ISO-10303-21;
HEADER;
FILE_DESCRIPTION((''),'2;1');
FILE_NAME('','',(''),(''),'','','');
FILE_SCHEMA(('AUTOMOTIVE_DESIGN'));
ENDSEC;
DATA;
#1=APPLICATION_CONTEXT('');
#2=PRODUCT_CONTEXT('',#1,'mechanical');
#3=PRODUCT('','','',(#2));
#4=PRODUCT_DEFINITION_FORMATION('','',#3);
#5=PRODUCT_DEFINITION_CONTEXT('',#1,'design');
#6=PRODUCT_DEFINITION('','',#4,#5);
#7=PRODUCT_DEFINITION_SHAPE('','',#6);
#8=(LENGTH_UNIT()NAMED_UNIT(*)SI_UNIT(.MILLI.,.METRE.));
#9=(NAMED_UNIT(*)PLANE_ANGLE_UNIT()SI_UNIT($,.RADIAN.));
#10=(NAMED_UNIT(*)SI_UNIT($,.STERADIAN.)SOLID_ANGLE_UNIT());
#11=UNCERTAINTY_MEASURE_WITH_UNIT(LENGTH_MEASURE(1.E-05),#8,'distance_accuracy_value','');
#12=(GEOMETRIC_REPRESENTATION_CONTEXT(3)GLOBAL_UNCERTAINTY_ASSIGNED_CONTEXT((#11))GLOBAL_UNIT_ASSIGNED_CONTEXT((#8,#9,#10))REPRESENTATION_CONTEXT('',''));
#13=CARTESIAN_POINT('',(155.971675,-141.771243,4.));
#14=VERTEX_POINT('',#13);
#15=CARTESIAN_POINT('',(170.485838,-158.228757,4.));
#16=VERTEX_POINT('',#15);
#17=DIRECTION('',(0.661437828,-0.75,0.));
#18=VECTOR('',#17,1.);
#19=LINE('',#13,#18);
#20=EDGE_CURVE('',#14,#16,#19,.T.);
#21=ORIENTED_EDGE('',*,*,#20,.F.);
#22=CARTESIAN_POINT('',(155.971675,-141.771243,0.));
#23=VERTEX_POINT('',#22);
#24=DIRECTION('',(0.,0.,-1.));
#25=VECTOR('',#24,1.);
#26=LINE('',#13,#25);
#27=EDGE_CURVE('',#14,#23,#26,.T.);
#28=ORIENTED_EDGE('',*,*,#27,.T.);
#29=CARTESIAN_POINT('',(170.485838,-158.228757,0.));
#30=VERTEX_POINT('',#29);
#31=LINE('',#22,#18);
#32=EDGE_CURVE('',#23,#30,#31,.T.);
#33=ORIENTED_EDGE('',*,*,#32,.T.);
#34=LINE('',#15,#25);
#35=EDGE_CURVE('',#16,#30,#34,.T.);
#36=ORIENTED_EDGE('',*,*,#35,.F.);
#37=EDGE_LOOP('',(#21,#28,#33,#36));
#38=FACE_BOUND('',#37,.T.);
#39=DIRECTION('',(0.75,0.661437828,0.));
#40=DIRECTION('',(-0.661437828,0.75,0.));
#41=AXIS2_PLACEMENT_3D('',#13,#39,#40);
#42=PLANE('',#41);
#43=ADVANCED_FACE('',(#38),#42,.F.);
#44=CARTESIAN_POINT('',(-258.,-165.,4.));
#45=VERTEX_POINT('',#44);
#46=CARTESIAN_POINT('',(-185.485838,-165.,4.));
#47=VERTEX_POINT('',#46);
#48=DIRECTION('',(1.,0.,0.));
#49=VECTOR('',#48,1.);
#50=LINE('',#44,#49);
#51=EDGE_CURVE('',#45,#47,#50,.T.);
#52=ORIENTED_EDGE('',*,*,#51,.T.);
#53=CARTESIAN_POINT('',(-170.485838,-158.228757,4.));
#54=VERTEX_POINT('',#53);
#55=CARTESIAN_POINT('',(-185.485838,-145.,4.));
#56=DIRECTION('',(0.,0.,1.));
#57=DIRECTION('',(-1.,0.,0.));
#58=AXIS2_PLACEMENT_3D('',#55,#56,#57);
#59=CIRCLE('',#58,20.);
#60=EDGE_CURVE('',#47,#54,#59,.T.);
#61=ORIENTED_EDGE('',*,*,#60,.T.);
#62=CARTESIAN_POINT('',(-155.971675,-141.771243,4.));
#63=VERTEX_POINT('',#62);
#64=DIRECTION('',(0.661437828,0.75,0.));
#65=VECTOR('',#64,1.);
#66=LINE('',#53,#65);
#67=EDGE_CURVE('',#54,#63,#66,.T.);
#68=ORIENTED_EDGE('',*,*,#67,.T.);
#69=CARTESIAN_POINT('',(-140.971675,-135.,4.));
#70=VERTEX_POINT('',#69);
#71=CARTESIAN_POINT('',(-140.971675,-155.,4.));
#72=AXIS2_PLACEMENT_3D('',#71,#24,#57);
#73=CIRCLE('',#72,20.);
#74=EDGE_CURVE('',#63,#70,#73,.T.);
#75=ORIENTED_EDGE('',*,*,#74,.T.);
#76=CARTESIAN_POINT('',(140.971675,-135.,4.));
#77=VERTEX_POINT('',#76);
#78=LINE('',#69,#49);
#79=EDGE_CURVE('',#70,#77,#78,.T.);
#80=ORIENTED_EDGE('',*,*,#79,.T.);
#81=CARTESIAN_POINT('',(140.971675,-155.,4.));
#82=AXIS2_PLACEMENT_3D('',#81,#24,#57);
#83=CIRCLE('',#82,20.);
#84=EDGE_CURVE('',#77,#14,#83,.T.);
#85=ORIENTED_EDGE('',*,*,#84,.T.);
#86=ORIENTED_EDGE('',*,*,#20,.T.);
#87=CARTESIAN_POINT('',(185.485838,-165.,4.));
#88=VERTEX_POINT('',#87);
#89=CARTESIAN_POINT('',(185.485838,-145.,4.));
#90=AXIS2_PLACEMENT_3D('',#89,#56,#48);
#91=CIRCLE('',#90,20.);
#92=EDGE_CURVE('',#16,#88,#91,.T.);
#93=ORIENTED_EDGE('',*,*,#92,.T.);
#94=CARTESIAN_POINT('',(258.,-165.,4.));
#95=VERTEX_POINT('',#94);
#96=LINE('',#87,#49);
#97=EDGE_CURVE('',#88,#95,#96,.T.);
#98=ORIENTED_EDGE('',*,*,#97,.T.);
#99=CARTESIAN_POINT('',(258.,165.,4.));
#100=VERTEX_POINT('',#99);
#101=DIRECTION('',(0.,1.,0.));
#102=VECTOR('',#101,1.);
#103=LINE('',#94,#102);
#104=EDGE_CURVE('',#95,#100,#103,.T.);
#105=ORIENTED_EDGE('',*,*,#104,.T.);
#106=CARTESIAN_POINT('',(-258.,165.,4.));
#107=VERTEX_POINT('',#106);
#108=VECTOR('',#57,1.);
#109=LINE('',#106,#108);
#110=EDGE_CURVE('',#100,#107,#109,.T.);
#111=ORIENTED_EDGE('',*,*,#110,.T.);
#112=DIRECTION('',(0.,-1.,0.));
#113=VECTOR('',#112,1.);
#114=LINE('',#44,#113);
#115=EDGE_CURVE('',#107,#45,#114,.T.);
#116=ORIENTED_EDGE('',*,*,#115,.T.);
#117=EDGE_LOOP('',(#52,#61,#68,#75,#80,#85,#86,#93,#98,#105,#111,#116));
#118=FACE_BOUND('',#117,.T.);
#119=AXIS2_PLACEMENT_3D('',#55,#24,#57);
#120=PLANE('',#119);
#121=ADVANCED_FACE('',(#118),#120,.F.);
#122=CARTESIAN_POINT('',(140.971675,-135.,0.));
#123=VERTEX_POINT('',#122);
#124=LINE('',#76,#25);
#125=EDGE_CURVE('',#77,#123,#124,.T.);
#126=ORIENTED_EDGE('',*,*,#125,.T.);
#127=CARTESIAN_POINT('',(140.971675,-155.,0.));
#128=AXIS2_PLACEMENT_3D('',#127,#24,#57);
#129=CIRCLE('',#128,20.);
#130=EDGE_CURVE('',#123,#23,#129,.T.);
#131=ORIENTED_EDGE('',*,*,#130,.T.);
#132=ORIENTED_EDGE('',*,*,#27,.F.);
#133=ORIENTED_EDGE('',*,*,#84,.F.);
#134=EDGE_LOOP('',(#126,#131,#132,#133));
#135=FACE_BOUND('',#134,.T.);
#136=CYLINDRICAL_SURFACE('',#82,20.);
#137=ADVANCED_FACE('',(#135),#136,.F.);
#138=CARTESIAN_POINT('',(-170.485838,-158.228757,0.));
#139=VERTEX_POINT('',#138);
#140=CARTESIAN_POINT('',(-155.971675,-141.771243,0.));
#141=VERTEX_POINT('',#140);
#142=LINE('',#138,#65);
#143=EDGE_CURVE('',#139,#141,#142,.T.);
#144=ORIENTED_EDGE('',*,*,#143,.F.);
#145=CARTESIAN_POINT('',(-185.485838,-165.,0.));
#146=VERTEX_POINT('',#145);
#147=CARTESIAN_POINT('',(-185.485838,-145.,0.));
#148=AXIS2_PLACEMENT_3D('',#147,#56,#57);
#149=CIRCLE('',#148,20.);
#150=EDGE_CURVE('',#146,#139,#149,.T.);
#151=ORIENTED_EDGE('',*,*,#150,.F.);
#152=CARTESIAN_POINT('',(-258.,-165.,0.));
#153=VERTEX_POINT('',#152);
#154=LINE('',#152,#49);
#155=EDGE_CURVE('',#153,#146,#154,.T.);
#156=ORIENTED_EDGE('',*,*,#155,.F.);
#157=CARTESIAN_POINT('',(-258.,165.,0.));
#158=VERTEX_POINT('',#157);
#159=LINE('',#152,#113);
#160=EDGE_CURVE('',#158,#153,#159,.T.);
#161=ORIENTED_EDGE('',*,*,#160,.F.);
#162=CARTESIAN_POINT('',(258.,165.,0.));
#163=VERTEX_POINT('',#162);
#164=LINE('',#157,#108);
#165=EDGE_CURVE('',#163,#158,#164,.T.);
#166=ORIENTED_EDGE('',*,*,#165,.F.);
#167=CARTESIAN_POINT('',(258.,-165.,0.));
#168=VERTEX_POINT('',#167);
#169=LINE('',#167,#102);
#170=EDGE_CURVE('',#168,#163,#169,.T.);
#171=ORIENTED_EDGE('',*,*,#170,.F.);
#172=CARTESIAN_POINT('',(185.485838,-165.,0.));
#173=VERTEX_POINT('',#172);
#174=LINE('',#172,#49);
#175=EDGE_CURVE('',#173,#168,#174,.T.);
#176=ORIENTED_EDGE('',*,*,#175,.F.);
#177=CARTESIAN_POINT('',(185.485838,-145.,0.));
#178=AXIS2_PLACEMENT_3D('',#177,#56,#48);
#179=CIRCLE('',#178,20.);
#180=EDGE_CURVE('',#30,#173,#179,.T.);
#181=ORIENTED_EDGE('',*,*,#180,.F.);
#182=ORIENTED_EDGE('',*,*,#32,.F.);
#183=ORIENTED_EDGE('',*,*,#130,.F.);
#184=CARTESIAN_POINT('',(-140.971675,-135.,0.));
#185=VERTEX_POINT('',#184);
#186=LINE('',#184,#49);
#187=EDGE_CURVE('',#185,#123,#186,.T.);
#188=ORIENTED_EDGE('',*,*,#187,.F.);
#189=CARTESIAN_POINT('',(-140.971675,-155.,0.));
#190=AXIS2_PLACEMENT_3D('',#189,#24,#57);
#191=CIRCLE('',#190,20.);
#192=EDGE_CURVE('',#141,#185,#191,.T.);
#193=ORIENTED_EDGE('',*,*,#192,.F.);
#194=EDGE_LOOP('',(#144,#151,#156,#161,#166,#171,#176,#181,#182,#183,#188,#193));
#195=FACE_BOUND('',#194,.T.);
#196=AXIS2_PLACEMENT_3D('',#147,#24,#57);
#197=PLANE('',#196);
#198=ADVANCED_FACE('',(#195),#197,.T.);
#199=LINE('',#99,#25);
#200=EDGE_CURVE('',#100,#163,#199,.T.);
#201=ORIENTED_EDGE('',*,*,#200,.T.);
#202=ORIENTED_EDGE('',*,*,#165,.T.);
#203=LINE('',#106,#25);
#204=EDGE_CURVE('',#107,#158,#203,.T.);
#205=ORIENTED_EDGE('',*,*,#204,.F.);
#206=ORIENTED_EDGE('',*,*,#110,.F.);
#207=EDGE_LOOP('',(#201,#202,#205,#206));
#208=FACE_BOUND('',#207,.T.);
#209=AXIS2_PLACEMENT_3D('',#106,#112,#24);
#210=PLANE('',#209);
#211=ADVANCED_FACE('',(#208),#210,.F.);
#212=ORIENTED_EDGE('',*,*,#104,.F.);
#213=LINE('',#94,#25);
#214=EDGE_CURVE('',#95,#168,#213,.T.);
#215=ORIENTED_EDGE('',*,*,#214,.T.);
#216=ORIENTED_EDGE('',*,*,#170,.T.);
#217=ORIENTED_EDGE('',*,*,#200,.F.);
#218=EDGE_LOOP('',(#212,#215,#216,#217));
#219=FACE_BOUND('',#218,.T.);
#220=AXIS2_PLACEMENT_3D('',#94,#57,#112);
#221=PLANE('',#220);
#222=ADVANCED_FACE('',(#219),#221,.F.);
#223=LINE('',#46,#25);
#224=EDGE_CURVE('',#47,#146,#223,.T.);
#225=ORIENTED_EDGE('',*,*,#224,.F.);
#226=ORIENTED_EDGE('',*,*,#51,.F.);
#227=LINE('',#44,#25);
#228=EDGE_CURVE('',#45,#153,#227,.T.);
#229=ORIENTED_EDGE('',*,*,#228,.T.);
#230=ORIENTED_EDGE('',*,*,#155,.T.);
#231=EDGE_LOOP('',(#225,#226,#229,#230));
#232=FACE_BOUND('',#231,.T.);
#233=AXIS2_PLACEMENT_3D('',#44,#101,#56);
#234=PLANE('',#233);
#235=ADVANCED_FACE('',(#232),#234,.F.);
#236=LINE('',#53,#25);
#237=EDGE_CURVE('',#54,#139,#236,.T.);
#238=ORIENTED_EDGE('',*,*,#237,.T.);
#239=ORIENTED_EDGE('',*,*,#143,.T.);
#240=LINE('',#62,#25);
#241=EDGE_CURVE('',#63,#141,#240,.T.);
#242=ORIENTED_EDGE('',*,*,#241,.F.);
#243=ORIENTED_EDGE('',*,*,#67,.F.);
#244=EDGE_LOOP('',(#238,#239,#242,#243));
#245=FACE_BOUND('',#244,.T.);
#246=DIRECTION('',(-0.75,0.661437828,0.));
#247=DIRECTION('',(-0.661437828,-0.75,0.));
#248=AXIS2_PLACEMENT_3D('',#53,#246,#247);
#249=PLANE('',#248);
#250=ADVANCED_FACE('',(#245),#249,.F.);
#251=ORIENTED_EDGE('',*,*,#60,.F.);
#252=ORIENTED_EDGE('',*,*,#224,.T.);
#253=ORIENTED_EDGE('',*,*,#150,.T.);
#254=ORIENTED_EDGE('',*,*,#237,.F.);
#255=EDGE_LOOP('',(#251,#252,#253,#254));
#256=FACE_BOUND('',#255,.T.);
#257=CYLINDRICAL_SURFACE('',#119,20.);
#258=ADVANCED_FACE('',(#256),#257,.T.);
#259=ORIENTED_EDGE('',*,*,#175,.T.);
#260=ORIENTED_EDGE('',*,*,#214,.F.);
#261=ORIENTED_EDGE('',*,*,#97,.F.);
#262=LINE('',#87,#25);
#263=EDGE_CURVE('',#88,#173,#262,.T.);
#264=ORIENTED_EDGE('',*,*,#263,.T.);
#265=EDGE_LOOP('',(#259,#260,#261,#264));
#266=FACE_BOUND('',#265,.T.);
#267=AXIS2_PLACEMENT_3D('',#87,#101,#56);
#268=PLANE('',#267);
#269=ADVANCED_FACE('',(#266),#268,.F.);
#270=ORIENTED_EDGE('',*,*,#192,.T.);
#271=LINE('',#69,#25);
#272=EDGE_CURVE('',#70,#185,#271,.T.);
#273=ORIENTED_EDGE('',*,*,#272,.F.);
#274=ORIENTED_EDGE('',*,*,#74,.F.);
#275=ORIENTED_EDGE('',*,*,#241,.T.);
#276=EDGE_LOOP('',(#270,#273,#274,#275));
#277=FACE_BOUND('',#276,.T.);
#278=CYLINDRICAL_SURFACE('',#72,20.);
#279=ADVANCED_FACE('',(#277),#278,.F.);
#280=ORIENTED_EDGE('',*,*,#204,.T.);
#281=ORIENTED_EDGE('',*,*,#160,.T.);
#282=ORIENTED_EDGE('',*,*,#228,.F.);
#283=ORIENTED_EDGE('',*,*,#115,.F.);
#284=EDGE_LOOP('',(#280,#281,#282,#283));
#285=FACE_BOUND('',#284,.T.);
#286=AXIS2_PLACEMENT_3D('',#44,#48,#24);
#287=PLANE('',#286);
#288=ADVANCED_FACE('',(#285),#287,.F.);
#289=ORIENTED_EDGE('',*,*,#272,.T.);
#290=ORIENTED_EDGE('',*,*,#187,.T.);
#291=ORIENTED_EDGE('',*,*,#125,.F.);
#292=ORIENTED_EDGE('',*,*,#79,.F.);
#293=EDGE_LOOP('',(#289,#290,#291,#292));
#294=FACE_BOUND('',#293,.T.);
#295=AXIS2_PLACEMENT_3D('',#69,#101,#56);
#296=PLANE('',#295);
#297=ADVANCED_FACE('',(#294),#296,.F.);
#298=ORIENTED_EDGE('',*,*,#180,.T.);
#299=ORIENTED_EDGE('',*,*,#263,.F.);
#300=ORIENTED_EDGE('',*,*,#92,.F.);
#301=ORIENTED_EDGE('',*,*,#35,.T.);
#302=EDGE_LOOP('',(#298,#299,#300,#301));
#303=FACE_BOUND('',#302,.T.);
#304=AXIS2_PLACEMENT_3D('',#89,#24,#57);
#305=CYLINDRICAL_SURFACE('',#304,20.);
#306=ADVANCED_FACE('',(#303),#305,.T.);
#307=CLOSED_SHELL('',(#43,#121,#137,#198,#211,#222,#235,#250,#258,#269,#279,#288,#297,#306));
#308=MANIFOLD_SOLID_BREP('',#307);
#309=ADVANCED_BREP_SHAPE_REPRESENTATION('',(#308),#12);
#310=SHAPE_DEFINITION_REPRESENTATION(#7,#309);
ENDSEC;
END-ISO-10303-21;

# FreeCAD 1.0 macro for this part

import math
import FreeCAD as App
import Part
import Sketcher

V = App.Vector

doc = App.newDocument("Part")
body = doc.addObject("PartDesign::Body", "Body")

# Sketch on XY plane
sketch1 = doc.addObject("Sketcher::SketchObject", "Sketch")
body.addObject(sketch1)
sketch1.AttachmentSupport = (doc.XY_Plane, [""])
sketch1.MapMode = "FlatFace"
sketch1.addGeometry([
    Part.LineSegment(V(-170, -158, 0), V(-156, -142, 0)),  # 0
    Part.ArcOfCircle(Part.Circle(V(-141, -155, 0), V(0, 0, 1), 20), math.radians(90), math.radians(139)),  # 1
    Part.LineSegment(V(-141, -135, 0), V(141, -135, 0)),  # 2
    Part.ArcOfCircle(Part.Circle(V(141, -155, 0), V(0, 0, 1), 20), math.radians(41), math.radians(90)),  # 3
    Part.LineSegment(V(156, -142, 0), V(170, -158, 0)),  # 4
    Part.ArcOfCircle(Part.Circle(V(185, -145, 0), V(0, 0, 1), 20), math.radians(-139), math.radians(-90)),  # 5
    Part.LineSegment(V(185, -165, 0), V(258, -165, 0)),  # 6
    Part.LineSegment(V(258, -165, 0), V(258, 165, 0)),  # 7
    Part.LineSegment(V(258, 165, 0), V(-258, 165, 0)),  # 8
    Part.LineSegment(V(-258, 165, 0), V(-258, -165, 0)),  # 9
    Part.LineSegment(V(-258, -165, 0), V(-185, -165, 0)),  # 10
    Part.ArcOfCircle(Part.Circle(V(-185, -145, 0), V(0, 0, 1), 20), math.radians(-90), math.radians(-41)),  # 11
], False)
sketch1.addConstraint([
    Sketcher.Constraint("Tangent", 0, 2, 1, 2),
    Sketcher.Constraint("Tangent", 1, 1, 2, 1),
    Sketcher.Constraint("Tangent", 2, 2, 3, 2),
    Sketcher.Constraint("Tangent", 3, 1, 4, 1),
    Sketcher.Constraint("Tangent", 4, 2, 5, 1),
    Sketcher.Constraint("Tangent", 5, 2, 6, 1),
    Sketcher.Constraint("Coincident", 6, 2, 7, 1),
    Sketcher.Constraint("Coincident", 7, 2, 8, 1),
    Sketcher.Constraint("Coincident", 8, 2, 9, 1),
    Sketcher.Constraint("Coincident", 9, 2, 10, 1),
    Sketcher.Constraint("Tangent", 10, 2, 11, 1),
    Sketcher.Constraint("Tangent", 11, 2, 0, 1),
    Sketcher.Constraint("Horizontal", 2),
    Sketcher.Constraint("Horizontal", 6),
    Sketcher.Constraint("Vertical", 7),
    Sketcher.Constraint("Horizontal", 8),
    Sketcher.Constraint("Vertical", 9),
    Sketcher.Constraint("Horizontal", 10),
    Sketcher.Constraint("Equal", 1, 3),
    Sketcher.Constraint("Equal", 3, 5),
    Sketcher.Constraint("Equal", 5, 11),
    Sketcher.Constraint("Symmetric", 6, 2, 8, 2, -1, 1),
    Sketcher.Constraint("Symmetric", 5, 3, 11, 3, -2),
    Sketcher.Constraint("Horizontal", 0, 2, 3, 1),
    Sketcher.Constraint("Radius", 1, 20.0),
    Sketcher.Constraint("DistanceX", 8, 2, 8, 1, 516.0),
    Sketcher.Constraint("DistanceY", 7, 1, 7, 2, 330.0),
    Sketcher.Constraint("DistanceY", 1, 3, -1, 1, 155.0),
    Sketcher.Constraint("DistanceX", 0, 2, 1, 3, 15.0),
    Sketcher.Constraint("DistanceX", 2, 1, 2, 2, 281.943351),
])
pad1 = doc.addObject("PartDesign::Pad", "Pad")
body.addObject(pad1)
pad1.Profile = sketch1
pad1.Length = 4

doc.recompute()
